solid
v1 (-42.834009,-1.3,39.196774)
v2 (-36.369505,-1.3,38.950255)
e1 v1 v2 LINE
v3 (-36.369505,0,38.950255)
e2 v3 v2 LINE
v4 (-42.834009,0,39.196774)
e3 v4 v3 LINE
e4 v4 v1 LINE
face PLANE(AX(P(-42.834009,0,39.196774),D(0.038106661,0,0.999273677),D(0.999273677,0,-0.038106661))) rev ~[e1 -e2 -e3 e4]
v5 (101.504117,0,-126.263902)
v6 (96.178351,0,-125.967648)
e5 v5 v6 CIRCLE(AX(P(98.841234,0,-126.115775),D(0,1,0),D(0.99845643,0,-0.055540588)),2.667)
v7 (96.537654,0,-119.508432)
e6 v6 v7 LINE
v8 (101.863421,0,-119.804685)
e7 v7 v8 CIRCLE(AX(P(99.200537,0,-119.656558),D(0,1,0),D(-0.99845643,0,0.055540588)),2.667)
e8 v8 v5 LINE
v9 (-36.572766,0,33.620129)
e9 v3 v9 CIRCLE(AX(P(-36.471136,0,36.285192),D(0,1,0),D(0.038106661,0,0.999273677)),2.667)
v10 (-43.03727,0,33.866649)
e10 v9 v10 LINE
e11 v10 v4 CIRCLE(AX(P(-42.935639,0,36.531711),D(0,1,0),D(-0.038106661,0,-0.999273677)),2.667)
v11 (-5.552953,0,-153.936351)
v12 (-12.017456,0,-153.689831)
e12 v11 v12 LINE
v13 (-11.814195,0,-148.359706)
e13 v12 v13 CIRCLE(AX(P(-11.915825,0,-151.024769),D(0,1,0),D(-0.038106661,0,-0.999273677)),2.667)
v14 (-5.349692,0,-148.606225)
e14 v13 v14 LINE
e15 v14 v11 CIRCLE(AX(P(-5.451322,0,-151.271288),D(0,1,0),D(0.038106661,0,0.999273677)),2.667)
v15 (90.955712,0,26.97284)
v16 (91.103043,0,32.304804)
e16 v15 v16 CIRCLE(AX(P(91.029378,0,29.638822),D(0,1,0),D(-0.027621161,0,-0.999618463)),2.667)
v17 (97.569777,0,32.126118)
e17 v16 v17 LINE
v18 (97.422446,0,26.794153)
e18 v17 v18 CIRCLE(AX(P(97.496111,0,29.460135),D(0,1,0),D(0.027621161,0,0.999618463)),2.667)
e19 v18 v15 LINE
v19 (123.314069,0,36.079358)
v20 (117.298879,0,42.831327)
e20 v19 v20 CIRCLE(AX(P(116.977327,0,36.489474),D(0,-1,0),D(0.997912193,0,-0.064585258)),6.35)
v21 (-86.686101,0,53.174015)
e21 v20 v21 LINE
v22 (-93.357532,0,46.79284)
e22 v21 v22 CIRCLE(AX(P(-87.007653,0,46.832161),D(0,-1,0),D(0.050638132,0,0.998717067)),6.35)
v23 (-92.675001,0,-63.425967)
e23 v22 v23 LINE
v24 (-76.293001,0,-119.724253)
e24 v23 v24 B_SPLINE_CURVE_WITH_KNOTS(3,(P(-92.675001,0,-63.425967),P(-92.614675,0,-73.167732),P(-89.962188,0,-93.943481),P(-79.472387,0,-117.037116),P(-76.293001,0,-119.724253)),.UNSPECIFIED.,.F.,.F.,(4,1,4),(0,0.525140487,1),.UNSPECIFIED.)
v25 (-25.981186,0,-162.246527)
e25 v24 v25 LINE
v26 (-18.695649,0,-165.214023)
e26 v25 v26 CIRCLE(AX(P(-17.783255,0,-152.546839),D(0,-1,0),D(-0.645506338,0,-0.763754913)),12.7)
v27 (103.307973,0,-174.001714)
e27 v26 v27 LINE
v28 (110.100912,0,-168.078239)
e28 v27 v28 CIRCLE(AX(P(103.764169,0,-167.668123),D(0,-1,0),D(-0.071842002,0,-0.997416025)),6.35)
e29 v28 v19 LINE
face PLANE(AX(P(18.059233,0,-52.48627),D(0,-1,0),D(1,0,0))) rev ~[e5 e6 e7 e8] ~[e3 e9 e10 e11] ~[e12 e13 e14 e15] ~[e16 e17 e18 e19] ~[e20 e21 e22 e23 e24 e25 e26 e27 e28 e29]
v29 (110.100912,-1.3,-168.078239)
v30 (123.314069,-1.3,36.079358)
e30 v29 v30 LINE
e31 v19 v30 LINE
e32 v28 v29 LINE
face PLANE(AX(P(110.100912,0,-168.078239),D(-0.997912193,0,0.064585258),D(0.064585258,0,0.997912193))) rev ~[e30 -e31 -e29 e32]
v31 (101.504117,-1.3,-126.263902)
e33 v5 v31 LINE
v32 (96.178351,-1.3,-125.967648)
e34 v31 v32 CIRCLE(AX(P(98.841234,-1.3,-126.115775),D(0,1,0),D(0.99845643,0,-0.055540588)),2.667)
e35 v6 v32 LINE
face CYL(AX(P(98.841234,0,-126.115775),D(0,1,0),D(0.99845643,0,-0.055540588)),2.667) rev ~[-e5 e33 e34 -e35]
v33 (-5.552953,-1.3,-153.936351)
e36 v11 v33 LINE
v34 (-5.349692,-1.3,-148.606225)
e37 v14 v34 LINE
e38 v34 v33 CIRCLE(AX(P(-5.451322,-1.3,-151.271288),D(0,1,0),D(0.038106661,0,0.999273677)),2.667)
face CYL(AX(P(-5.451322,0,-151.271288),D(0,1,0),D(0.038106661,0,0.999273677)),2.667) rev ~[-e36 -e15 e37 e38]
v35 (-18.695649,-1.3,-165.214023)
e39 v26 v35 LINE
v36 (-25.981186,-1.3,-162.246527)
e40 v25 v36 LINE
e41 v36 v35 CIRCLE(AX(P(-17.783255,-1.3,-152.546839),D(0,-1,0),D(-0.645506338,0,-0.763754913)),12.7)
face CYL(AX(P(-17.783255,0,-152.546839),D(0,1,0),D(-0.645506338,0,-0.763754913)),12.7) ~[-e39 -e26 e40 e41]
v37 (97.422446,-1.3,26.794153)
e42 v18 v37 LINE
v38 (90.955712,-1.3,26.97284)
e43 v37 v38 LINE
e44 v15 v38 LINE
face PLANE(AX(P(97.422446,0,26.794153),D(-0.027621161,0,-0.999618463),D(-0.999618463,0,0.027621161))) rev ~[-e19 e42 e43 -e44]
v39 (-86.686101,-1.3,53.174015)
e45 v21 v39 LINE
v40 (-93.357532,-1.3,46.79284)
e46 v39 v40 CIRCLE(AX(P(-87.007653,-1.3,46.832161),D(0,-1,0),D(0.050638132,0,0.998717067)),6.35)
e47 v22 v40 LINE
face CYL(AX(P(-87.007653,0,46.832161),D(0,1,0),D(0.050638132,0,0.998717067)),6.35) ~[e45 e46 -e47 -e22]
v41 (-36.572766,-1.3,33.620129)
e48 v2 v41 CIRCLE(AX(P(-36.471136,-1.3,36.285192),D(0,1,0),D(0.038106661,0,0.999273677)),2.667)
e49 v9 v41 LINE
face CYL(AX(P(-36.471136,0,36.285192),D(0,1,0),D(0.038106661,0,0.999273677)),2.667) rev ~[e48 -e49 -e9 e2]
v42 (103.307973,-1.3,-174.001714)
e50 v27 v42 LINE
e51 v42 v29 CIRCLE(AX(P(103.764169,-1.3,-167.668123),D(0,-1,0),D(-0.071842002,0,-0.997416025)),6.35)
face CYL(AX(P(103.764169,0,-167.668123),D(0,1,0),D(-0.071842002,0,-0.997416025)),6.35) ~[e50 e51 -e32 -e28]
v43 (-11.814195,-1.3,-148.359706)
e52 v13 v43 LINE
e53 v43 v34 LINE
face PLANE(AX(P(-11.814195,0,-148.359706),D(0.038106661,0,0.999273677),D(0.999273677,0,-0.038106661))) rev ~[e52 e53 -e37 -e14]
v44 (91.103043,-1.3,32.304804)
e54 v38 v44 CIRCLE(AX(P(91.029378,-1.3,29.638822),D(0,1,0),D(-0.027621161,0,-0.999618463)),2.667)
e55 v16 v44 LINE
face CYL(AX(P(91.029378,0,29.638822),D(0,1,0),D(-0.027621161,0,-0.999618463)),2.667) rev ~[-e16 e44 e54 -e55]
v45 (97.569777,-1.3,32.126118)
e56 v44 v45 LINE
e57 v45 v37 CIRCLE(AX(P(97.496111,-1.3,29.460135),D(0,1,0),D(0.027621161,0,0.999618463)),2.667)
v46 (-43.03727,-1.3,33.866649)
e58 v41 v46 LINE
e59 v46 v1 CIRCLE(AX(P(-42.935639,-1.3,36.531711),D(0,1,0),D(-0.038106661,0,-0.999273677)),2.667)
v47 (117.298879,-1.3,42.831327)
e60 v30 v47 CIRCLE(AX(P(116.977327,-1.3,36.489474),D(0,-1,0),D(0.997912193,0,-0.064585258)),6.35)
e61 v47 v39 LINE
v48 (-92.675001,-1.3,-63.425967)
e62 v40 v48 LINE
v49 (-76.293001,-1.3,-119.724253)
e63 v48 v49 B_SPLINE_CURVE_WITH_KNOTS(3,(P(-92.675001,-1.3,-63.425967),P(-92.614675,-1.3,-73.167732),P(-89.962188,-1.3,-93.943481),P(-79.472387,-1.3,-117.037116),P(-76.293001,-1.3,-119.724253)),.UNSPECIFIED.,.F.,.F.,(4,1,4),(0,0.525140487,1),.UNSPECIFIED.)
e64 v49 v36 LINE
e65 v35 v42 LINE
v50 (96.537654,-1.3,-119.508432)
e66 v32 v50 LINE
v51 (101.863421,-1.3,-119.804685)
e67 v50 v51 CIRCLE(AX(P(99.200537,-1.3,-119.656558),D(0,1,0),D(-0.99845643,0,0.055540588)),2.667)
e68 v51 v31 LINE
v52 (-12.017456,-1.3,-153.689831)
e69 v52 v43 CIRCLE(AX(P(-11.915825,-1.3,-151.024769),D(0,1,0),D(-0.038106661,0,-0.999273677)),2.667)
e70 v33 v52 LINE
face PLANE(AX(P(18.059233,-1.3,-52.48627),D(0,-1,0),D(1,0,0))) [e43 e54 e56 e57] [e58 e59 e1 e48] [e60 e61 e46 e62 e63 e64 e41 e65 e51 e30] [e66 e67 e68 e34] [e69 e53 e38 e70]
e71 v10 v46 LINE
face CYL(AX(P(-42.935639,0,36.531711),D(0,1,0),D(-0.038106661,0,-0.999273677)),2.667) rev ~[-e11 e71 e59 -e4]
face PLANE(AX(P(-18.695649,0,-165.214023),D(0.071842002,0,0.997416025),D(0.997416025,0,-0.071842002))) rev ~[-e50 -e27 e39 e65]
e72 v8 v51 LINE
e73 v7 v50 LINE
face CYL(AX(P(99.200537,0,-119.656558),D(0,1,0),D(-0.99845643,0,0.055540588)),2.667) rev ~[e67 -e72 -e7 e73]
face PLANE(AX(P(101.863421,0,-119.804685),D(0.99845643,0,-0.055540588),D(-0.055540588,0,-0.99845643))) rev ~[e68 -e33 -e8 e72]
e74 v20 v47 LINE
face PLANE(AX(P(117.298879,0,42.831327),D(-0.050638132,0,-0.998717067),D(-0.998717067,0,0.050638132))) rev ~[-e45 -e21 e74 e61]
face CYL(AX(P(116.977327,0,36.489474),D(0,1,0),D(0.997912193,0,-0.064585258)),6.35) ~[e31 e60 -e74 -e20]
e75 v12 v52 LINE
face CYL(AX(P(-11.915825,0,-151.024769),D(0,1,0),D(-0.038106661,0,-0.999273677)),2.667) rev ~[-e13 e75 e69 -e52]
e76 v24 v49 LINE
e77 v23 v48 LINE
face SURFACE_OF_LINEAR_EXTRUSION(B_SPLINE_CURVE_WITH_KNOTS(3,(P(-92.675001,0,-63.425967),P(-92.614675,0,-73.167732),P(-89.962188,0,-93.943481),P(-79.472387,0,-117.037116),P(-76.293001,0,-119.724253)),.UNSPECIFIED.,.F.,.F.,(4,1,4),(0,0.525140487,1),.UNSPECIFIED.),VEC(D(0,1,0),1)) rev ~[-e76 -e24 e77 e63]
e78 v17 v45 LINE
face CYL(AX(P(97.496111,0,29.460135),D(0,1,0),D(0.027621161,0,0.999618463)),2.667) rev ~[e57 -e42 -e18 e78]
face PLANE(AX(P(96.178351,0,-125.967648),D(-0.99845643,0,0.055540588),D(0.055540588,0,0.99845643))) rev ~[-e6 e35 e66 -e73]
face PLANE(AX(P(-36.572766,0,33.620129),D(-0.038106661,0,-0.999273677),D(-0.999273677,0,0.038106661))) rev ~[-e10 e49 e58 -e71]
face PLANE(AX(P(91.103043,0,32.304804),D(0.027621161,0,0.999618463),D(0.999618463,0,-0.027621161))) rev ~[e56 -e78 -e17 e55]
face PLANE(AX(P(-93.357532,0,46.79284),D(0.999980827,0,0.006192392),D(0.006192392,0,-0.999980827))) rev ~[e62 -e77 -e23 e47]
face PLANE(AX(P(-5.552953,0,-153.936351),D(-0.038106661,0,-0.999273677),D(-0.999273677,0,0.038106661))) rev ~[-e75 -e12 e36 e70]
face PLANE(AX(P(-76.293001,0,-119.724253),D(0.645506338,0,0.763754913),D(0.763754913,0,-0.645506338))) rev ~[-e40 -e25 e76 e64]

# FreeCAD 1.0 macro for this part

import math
import FreeCAD as App
import Part
import Sketcher
Q = App.Units.Quantity

doc = App.newDocument("Part")
body = doc.addObject("PartDesign::Body", "Body")

# Sketch on XZ plane
sketch1 = body.newObject("Sketcher::SketchObject", "Sketch")
sketch1.AttachmentSupport = (doc.getObject("XZ_Plane"), [""])
sketch1.MapMode = "FlatFace"
sketch1.addGeometry([
    Part.ArcOfCircle(Part.Circle(App.Vector(103.764169, -167.668123, 0), App.Vector(0, 0, 1), 6.35), math.radians(-94.119793), math.radians(-3.70304)),  # 0
    Part.LineSegment(App.Vector(110.100912, -168.078239, 0), App.Vector(123.314069, 36.079358, 0)),  # 1
    Part.ArcOfCircle(Part.Circle(App.Vector(116.977327, 36.489474, 0), App.Vector(0, 0, 1), 6.35), math.radians(-3.70304), math.radians(87.097407)),  # 2
    Part.LineSegment(App.Vector(117.298879, 42.831327, 0), App.Vector(-86.686101, 53.174015, 0)),  # 3
    Part.ArcOfCircle(Part.Circle(App.Vector(-87.007653, 46.832161, 0), App.Vector(0, 0, 1), 6.35), math.radians(87.097407), math.radians(180.3548)),  # 4
    Part.LineSegment(App.Vector(-93.357532, 46.79284, 0), App.Vector(-92.675001, -63.425967, 0)),  # 5
    Part.BSplineCurve([App.Vector(-92.675001, -63.425967, 0), App.Vector(-92.614675, -73.167732, 0), App.Vector(-89.962188, -93.943481, 0), App.Vector(-79.472387, -117.037116, 0), App.Vector(-76.293001, -119.724253, 0)], [4, 1, 4], [0, 0.525140487, 1], False, 3, [1, 1, 1, 1, 1], False),  # 6
    Part.LineSegment(App.Vector(-76.293001, -119.724253, 0), App.Vector(-25.981186, -162.246527, 0)),  # 7
    Part.ArcOfCircle(Part.Circle(App.Vector(-17.783255, -152.546839, 0), App.Vector(0, 0, 1), 12.7), math.radians(-130.20365), math.radians(-94.119793)),  # 8
    Part.LineSegment(App.Vector(-18.695649, -165.214023, 0), App.Vector(103.307973, -174.001714, 0)),  # 9
    Part.LineSegment(App.Vector(-5.552953, -153.936351, 0), App.Vector(-12.017456, -153.689831, 0)),  # 10
    Part.ArcOfCircle(Part.Circle(App.Vector(-11.915825, -151.024769, 0), App.Vector(0, 0, 1), 2.667), math.radians(87.81612), math.radians(267.81612)),  # 11
    Part.LineSegment(App.Vector(-11.814195, -148.359706, 0), App.Vector(-5.349692, -148.606225, 0)),  # 12
    Part.ArcOfCircle(Part.Circle(App.Vector(-5.451322, -151.271288, 0), App.Vector(0, 0, 1), 2.667), math.radians(-92.18388), math.radians(87.81612)),  # 13
    Part.LineSegment(App.Vector(101.863421, -119.804685, 0), App.Vector(101.504117, -126.263902, 0)),  # 14
    Part.ArcOfCircle(Part.Circle(App.Vector(98.841234, -126.115775, 0), App.Vector(0, 0, 1), 2.667), math.radians(176.81612), math.radians(356.81612)),  # 15
    Part.LineSegment(App.Vector(96.178351, -125.967648, 0), App.Vector(96.537654, -119.508432, 0)),  # 16
    Part.ArcOfCircle(Part.Circle(App.Vector(99.200537, -119.656558, 0), App.Vector(0, 0, 1), 2.667), math.radians(-3.18388), math.radians(176.81612)),  # 17
    Part.LineSegment(App.Vector(-36.572766, 33.620129, 0), App.Vector(-43.03727, 33.866649, 0)),  # 18
    Part.ArcOfCircle(Part.Circle(App.Vector(-42.935639, 36.531711, 0), App.Vector(0, 0, 1), 2.667), math.radians(87.81612), math.radians(267.81612)),  # 19
    Part.LineSegment(App.Vector(-42.834009, 39.196774, 0), App.Vector(-36.369505, 38.950255, 0)),  # 20
    Part.ArcOfCircle(Part.Circle(App.Vector(-36.471136, 36.285192, 0), App.Vector(0, 0, 1), 2.667), math.radians(-92.18388), math.radians(87.81612)),  # 21
    Part.LineSegment(App.Vector(97.422446, 26.794153, 0), App.Vector(90.955712, 26.97284, 0)),  # 22
    Part.ArcOfCircle(Part.Circle(App.Vector(91.029378, 29.638822, 0), App.Vector(0, 0, 1), 2.667), math.radians(88.417223), math.radians(268.417223)),  # 23
    Part.LineSegment(App.Vector(91.103043, 32.304804, 0), App.Vector(97.569777, 32.126118, 0)),  # 24
    Part.ArcOfCircle(Part.Circle(App.Vector(97.496111, 29.460135, 0), App.Vector(0, 0, 1), 2.667), math.radians(-91.582777), math.radians(88.417223)),  # 25
], False)
sketch1.addConstraint([
    Sketcher.Constraint("Block", 6),
    Sketcher.Constraint("Tangent", 0, 2, 1, 1),
    Sketcher.Constraint("Tangent", 1, 2, 2, 1),
    Sketcher.Constraint("Tangent", 2, 2, 3, 1),
    Sketcher.Constraint("Tangent", 3, 2, 4, 1),
    Sketcher.Constraint("Tangent", 4, 2, 5, 1),
    Sketcher.Constraint("Coincident", 5, 2, 6, 1),
    Sketcher.Constraint("Coincident", 6, 2, 7, 1),
    Sketcher.Constraint("Tangent", 7, 2, 8, 1),
    Sketcher.Constraint("Tangent", 8, 2, 9, 1),
    Sketcher.Constraint("Tangent", 9, 2, 0, 1),
    Sketcher.Constraint("Tangent", 10, 2, 11, 2),
    Sketcher.Constraint("Tangent", 11, 1, 12, 1),
    Sketcher.Constraint("Tangent", 12, 2, 13, 2),
    Sketcher.Constraint("Tangent", 13, 1, 10, 1),
    Sketcher.Constraint("Tangent", 14, 2, 15, 2),
    Sketcher.Constraint("Tangent", 15, 1, 16, 1),
    Sketcher.Constraint("Tangent", 16, 2, 17, 2),
    Sketcher.Constraint("Tangent", 17, 1, 14, 1),
    Sketcher.Constraint("Tangent", 18, 2, 19, 2),
    Sketcher.Constraint("Tangent", 19, 1, 20, 1),
    Sketcher.Constraint("Tangent", 20, 2, 21, 2),
    Sketcher.Constraint("Tangent", 21, 1, 18, 1),
    Sketcher.Constraint("Tangent", 22, 2, 23, 2),
    Sketcher.Constraint("Tangent", 23, 1, 24, 1),
    Sketcher.Constraint("Tangent", 24, 2, 25, 2),
    Sketcher.Constraint("Tangent", 25, 1, 22, 1),
    Sketcher.Constraint("Equal", 0, 2),
    Sketcher.Constraint("Equal", 2, 4),
    Sketcher.Constraint("Equal", 11, 13),
    Sketcher.Constraint("Equal", 13, 15),
    Sketcher.Constraint("Equal", 15, 17),
    Sketcher.Constraint("Equal", 17, 19),
    Sketcher.Constraint("Equal", 19, 21),
    Sketcher.Constraint("Equal", 21, 23),
    Sketcher.Constraint("Equal", 23, 25),
    Sketcher.Constraint("Parallel", 12, 18),
    Sketcher.Constraint("Equal", 12, 14),
    Sketcher.Constraint("Equal", 16, 18),
    Sketcher.Constraint("Equal", 20, 22),
    Sketcher.Constraint("Radius", 8, Q("0.5 in")),
    Sketcher.Constraint("Radius", 0, Q("0.25 in")),
    Sketcher.Constraint("Radius", 11, Q("0.105 in")),
    Sketcher.Constraint("DistanceX", 8, 3, 10, 2, Q("0.227 in")),
    Sketcher.Constraint("DistanceY", 15, 3, 17, 3, Q("0.2542999 in")),
    Sketcher.Constraint("DistanceX", 3, 2, -1, 1, 86.686101),
    Sketcher.Constraint("DistanceY", 14, 2, -1, 1, 126.263902),
    Sketcher.Constraint("DistanceX", 4, 3, 8, 3, 69.224398),
    Sketcher.Constraint("DistanceY", 8, 3, 4, 3, 199.379001),
    Sketcher.Constraint("DistanceY", 13, 3, 19, 3, 187.803),
    Sketcher.Constraint("DistanceX", 23, 3, 2, 2, 26.269502),
    Sketcher.Constraint("DistanceY", 0, 3, 8, 2, 2.4541),
    Sketcher.Constraint("DistanceX", 22, 2, 25, 3, 6.540399),
    Sketcher.Constraint("Distance", 1, 204.58473),
    Sketcher.Constraint("Distance", 5, 110.22092),
    Sketcher.Constraint("DistanceX", -1, 1, 0, 3, 103.764169),
    Sketcher.Constraint("DistanceY", 11, 3, -1, 1, 151.024769),
    Sketcher.Constraint("DistanceY", 13, 3, -1, 1, 151.271288),
    Sketcher.Constraint("DistanceY", 17, 3, -1, 1, 119.656558),
    Sketcher.Constraint("DistanceX", 19, 3, -1, 1, 42.935639),
    Sketcher.Constraint("DistanceX", -1, 1, 25, 3, 97.496111),
    Sketcher.Constraint("DistanceX", -1, 1, 15, 1, 96.178351),
    Sketcher.Constraint("DistanceY", -1, 1, 22, 2, 26.97284),
])
pad1 = body.newObject("PartDesign::Pad", "Pad")
pad1.Profile = sketch1
pad1.Length = 1.3

doc.recompute()
